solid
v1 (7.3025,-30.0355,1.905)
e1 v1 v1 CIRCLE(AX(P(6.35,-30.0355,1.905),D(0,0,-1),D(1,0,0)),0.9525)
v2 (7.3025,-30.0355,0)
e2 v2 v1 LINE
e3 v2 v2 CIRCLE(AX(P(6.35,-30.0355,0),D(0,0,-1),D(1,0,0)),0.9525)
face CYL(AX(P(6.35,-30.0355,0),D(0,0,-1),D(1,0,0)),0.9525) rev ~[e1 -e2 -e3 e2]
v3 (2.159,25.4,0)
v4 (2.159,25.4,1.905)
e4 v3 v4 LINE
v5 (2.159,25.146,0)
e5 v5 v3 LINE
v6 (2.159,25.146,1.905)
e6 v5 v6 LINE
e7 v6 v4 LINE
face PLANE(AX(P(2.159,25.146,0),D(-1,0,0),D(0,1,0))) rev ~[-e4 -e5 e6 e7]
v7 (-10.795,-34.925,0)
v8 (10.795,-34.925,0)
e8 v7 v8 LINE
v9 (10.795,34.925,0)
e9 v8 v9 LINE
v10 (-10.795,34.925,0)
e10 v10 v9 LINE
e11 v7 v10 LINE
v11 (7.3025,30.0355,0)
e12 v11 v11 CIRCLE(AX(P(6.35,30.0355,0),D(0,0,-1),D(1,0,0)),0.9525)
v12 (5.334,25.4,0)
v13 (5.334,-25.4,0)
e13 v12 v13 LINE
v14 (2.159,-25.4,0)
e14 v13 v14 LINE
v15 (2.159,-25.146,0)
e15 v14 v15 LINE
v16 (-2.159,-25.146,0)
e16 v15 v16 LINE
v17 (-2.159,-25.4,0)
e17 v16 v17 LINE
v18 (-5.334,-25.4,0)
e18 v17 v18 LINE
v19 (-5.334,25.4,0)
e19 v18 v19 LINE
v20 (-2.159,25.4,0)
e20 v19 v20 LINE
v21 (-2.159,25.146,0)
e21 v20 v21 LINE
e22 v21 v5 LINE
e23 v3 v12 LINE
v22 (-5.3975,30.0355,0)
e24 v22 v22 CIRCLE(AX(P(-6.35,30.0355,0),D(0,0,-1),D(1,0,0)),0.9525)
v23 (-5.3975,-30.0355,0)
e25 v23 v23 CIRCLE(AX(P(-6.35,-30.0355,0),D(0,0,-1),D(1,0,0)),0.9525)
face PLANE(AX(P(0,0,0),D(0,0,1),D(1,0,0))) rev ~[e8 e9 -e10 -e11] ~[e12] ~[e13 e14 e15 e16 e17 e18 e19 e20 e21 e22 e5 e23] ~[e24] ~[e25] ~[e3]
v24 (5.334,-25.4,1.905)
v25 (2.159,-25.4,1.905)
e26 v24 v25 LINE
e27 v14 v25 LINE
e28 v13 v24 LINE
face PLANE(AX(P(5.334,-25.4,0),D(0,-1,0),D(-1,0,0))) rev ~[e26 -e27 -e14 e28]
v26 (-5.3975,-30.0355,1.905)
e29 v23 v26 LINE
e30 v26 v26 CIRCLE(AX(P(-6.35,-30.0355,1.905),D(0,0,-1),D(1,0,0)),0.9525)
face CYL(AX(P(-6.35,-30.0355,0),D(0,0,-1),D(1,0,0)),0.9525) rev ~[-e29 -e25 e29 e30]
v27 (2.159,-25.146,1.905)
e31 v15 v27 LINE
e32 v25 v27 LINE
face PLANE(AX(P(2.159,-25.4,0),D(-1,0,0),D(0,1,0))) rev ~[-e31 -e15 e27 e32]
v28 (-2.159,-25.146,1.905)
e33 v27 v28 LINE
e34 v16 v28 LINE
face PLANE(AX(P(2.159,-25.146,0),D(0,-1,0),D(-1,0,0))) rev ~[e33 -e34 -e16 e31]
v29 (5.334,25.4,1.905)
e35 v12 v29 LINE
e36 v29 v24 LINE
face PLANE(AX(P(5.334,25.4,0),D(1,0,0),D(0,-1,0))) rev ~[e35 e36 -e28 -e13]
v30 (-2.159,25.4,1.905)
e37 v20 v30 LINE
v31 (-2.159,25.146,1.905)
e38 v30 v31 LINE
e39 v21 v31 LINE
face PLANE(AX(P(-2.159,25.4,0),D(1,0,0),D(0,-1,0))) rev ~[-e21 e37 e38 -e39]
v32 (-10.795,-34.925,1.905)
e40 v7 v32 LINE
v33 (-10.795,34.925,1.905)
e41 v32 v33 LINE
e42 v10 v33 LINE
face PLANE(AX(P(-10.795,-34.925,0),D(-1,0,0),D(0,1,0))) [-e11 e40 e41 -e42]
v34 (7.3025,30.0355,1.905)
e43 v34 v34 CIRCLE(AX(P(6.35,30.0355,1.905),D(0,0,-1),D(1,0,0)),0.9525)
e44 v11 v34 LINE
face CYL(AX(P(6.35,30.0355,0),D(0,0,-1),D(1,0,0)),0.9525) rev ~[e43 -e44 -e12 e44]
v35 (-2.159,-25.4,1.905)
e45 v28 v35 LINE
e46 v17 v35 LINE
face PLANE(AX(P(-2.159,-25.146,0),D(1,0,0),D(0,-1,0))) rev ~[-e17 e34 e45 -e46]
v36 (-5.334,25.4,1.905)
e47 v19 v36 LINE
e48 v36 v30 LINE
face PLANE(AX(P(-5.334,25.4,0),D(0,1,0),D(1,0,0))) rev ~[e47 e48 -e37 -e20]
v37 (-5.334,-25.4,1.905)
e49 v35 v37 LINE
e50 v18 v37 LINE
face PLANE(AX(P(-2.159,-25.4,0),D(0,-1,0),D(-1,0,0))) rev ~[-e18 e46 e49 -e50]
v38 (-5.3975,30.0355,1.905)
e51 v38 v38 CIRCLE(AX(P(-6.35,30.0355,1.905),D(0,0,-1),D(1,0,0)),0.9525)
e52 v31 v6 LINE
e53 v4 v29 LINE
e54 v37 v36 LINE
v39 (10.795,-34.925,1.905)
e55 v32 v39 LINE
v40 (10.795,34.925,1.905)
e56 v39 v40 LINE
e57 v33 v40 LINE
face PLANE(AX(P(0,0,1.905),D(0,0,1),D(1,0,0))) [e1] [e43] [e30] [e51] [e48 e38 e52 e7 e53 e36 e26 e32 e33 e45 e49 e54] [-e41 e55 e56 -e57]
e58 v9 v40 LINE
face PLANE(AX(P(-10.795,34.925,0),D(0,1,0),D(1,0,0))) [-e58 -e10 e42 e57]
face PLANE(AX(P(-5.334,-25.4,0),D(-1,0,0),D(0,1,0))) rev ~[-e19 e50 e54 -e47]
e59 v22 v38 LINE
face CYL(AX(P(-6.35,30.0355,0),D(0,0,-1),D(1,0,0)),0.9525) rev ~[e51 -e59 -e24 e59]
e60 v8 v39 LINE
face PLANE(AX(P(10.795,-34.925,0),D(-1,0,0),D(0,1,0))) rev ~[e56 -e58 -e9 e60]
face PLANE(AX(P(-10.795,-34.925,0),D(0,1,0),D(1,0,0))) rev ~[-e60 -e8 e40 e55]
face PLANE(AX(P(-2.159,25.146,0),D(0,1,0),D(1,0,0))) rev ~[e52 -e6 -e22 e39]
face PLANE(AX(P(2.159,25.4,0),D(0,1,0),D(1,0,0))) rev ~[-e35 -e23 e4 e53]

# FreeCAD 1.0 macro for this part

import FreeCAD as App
import Part
import Sketcher
Q = App.Units.Quantity

doc = App.newDocument("Part")
body = doc.addObject("PartDesign::Body", "Body")

# Sketch on XY plane
sketch1 = body.newObject("Sketcher::SketchObject", "Sketch")
sketch1.AttachmentSupport = (doc.getObject("XY_Plane"), [""])
sketch1.MapMode = "FlatFace"
sketch1.addGeometry([
    Part.LineSegment(App.Vector(-10.79, 34.92, 0), App.Vector(-10.79, -34.92, 0)),  # 0
    Part.LineSegment(App.Vector(-10.79, -34.92, 0), App.Vector(10.79, -34.92, 0)),  # 1
    Part.LineSegment(App.Vector(10.79, -34.92, 0), App.Vector(10.79, 34.92, 0)),  # 2
    Part.LineSegment(App.Vector(10.79, 34.92, 0), App.Vector(-10.79, 34.92, 0)),  # 3
    Part.LineSegment(App.Vector(2.16, 25.15, 0), App.Vector(2.16, 25.4, 0)),  # 4
    Part.LineSegment(App.Vector(2.16, 25.4, 0), App.Vector(5.33, 25.4, 0)),  # 5
    Part.LineSegment(App.Vector(5.33, 25.4, 0), App.Vector(5.33, -25.4, 0)),  # 6
    Part.LineSegment(App.Vector(5.33, -25.4, 0), App.Vector(2.16, -25.4, 0)),  # 7
    Part.LineSegment(App.Vector(2.16, -25.4, 0), App.Vector(2.16, -25.15, 0)),  # 8
    Part.LineSegment(App.Vector(2.16, -25.15, 0), App.Vector(-2.16, -25.15, 0)),  # 9
    Part.LineSegment(App.Vector(-2.16, -25.15, 0), App.Vector(-2.16, -25.4, 0)),  # 10
    Part.LineSegment(App.Vector(-2.16, -25.4, 0), App.Vector(-5.33, -25.4, 0)),  # 11
    Part.LineSegment(App.Vector(-5.33, -25.4, 0), App.Vector(-5.33, 25.4, 0)),  # 12
    Part.LineSegment(App.Vector(-5.33, 25.4, 0), App.Vector(-2.16, 25.4, 0)),  # 13
    Part.LineSegment(App.Vector(-2.16, 25.4, 0), App.Vector(-2.16, 25.15, 0)),  # 14
    Part.LineSegment(App.Vector(-2.16, 25.15, 0), App.Vector(2.16, 25.15, 0)),  # 15
], False)
sketch1.addConstraint([
    Sketcher.Constraint("Coincident", 0, 2, 1, 1),
    Sketcher.Constraint("Coincident", 1, 2, 2, 1),
    Sketcher.Constraint("Coincident", 2, 2, 3, 1),
    Sketcher.Constraint("Coincident", 3, 2, 0, 1),
    Sketcher.Constraint("Coincident", 4, 2, 5, 1),
    Sketcher.Constraint("Coincident", 5, 2, 6, 1),
    Sketcher.Constraint("Coincident", 6, 2, 7, 1),
    Sketcher.Constraint("Coincident", 7, 2, 8, 1),
    Sketcher.Constraint("Coincident", 8, 2, 9, 1),
    Sketcher.Constraint("Coincident", 9, 2, 10, 1),
    Sketcher.Constraint("Coincident", 10, 2, 11, 1),
    Sketcher.Constraint("Coincident", 11, 2, 12, 1),
    Sketcher.Constraint("Coincident", 12, 2, 13, 1),
    Sketcher.Constraint("Coincident", 13, 2, 14, 1),
    Sketcher.Constraint("Coincident", 14, 2, 15, 1),
    Sketcher.Constraint("Coincident", 15, 2, 4, 1),
    Sketcher.Constraint("Vertical", 0),
    Sketcher.Constraint("Horizontal", 1),
    Sketcher.Constraint("Vertical", 2),
    Sketcher.Constraint("Horizontal", 3),
    Sketcher.Constraint("Vertical", 4),
    Sketcher.Constraint("Horizontal", 5),
    Sketcher.Constraint("Vertical", 6),
    Sketcher.Constraint("Horizontal", 7),
    Sketcher.Constraint("Vertical", 8),
    Sketcher.Constraint("Horizontal", 9),
    Sketcher.Constraint("Vertical", 10),
    Sketcher.Constraint("Horizontal", 11),
    Sketcher.Constraint("Vertical", 12),
    Sketcher.Constraint("Horizontal", 13),
    Sketcher.Constraint("Vertical", 14),
    Sketcher.Constraint("Horizontal", 15),
    Sketcher.Constraint("Symmetric", 0, 2, 2, 2, -1, 1),
    Sketcher.Constraint("Symmetric", 4, 2, 10, 2, -1, 1),
    Sketcher.Constraint("Symmetric", 6, 2, 12, 2, -1, 1),
    Sketcher.Constraint("Symmetric", 8, 2, 14, 2, -1, 1),
    Sketcher.Constraint("Symmetric", 7, 2, 10, 2, -2),
    Sketcher.Constraint("DistanceY", 6, 2, 6, 1, Q("2 in")),
    Sketcher.Constraint("DistanceX", 1, 1, 1, 2, Q("0.85 in")),
    Sketcher.Constraint("DistanceX", 9, 2, 9, 1, Q("0.17 in")),
    Sketcher.Constraint("DistanceY", 0, 2, 0, 1, Q("2.75 in")),
    Sketcher.Constraint("DistanceY", 4, 1, 4, 2, Q("0.01 in")),
    Sketcher.Constraint("DistanceX", 5, 1, 5, 2, Q("0.125 in")),
])
pad1 = body.newObject("PartDesign::Pad", "Pad")
pad1.Profile = sketch1
pad1.Length = Q("0.075 in")

# Sketch on XY plane
sketch2 = body.newObject("Sketcher::SketchObject", "Sketch001")
sketch2.AttachmentSupport = (doc.getObject("XY_Plane"), [""])
sketch2.MapMode = "FlatFace"
sketch2.addGeometry([
    Part.Circle(App.Vector(6.3, -30, 0), App.Vector(0, 0, 1), 1),
    Part.Circle(App.Vector(-6.3, -30, 0), App.Vector(0, 0, 1), 1),
    Part.Circle(App.Vector(6.3, 30, 0), App.Vector(0, 0, 1), 1),
    Part.Circle(App.Vector(-6.3, 30, 0), App.Vector(0, 0, 1), 1),
], False)
sketch2.addConstraint([
    Sketcher.Constraint("Equal", 0, 1),
    Sketcher.Constraint("Equal", 1, 2),
    Sketcher.Constraint("Equal", 2, 3),
    Sketcher.Constraint("Symmetric", 1, 3, 2, 3, -1, 1),
    Sketcher.Constraint("Symmetric", 0, 3, 3, 3, -1, 1),
    Sketcher.Constraint("Symmetric", 0, 3, 1, 3, -2),
    Sketcher.Constraint("Diameter", 0, Q("0.075 in")),
    Sketcher.Constraint("DistanceX", 1, 3, 0, 3, Q("0.5 in")),
    Sketcher.Constraint("DistanceY", 0, 3, 2, 3, Q("2.365 in")),
])
pocket1 = body.newObject("PartDesign::Pocket", "Pocket")
pocket1.Profile = sketch2
pocket1.Length = Q("1 in")
pocket1.Reversed = True

doc.recompute()
